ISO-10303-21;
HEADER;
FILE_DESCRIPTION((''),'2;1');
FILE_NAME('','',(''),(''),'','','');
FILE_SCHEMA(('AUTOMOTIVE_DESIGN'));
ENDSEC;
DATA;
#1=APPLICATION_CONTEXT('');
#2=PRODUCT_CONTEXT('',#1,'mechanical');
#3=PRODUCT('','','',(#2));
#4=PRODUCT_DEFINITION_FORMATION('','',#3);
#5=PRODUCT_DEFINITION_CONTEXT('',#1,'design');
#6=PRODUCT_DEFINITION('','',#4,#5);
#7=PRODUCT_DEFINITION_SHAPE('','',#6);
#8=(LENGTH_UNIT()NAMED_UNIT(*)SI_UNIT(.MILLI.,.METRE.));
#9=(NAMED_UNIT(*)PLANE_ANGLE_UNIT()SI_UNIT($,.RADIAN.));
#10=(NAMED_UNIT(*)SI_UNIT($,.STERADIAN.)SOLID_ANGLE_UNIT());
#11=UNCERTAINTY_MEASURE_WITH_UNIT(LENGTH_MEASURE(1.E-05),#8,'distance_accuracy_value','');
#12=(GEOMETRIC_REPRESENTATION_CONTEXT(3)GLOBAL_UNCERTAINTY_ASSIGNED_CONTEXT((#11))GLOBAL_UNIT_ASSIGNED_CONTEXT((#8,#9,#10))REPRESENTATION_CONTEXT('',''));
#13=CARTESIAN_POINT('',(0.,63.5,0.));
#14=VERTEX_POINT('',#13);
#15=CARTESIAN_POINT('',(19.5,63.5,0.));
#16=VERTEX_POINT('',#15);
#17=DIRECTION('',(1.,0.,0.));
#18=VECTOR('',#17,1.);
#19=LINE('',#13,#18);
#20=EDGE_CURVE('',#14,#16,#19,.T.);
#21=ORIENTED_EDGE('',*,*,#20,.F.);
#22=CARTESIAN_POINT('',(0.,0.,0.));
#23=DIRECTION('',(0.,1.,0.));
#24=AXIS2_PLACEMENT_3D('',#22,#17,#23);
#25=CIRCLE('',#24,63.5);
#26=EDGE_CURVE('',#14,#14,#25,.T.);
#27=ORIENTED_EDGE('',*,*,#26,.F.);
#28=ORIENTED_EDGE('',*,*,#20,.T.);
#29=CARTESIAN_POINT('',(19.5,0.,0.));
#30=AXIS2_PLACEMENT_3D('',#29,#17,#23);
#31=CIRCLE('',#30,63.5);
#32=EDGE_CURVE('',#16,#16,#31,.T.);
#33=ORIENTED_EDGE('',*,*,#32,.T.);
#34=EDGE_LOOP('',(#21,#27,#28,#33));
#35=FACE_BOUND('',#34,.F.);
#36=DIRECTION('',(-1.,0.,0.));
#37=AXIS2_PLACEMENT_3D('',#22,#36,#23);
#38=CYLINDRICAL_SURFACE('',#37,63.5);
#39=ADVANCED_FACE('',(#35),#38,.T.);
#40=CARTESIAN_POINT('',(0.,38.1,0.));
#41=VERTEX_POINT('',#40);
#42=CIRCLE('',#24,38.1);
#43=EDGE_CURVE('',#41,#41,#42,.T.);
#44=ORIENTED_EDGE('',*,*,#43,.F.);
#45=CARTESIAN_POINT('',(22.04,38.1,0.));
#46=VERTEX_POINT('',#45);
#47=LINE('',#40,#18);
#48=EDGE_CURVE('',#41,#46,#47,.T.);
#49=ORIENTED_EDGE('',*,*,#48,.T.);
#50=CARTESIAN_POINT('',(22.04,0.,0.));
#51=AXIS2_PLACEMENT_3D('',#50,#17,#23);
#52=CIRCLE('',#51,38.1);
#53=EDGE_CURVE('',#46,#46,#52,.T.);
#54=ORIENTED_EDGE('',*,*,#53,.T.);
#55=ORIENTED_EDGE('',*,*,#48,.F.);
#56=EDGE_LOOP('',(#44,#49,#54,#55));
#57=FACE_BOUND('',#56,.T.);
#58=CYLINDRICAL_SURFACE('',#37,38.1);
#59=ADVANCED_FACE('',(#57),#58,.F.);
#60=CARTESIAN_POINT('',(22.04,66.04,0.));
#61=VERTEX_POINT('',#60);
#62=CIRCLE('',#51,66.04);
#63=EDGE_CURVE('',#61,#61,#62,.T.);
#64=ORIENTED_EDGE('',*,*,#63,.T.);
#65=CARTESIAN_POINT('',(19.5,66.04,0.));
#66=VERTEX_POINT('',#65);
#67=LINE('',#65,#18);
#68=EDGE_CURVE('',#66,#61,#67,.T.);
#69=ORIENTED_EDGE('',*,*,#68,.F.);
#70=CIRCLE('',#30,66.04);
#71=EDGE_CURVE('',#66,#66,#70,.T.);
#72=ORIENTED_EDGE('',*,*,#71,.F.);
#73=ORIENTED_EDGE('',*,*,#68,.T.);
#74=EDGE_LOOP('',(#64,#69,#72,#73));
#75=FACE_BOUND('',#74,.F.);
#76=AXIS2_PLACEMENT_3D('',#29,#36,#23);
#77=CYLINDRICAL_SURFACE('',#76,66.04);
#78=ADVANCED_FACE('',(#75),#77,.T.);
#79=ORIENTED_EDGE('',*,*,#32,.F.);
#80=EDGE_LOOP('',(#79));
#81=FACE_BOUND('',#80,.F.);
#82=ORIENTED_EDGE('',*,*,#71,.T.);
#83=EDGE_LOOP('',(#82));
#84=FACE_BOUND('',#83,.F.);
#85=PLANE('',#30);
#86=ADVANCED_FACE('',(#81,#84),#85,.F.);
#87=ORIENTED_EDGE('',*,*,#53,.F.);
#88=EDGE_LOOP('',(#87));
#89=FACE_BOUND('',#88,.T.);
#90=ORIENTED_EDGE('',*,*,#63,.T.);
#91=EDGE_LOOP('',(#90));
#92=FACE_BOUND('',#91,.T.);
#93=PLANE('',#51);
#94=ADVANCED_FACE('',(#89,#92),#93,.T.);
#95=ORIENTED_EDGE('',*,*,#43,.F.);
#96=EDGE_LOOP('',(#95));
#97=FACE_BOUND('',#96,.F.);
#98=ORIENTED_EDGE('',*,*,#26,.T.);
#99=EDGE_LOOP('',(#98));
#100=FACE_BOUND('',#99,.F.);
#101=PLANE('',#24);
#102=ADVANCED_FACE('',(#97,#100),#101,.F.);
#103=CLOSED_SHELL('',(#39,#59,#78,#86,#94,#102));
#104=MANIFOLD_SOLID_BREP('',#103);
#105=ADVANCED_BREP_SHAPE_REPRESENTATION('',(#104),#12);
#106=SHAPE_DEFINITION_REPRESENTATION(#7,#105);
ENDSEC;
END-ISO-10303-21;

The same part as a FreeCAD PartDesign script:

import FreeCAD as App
import Part
import Sketcher
from FreeCAD import Vector
Q = App.Units.Quantity

doc = App.newDocument("Part")
body = doc.addObject("PartDesign::Body", "Body")

# Sketch on YZ plane
sketch1 = doc.addObject("Sketcher::SketchObject", "Sketch")
body.addObject(sketch1)
sketch1.AttachmentSupport = (doc.YZ_Plane, [""])
sketch1.MapMode = "FlatFace"
sketch1.addGeometry([
    Part.Circle(Vector(0, 0, 0), Vector(0, 0, 1), 63.5),
    Part.Circle(Vector(0, 0, 0), Vector(0, 0, 1), 38.1),
], False)
sketch1.addConstraint([
    Sketcher.Constraint("Coincident", 0, 3, -1, 1),
    Sketcher.Constraint("Coincident", 1, 3, -1, 1),
    Sketcher.Constraint("Diameter", 0, Q("5 in")),
    Sketcher.Constraint("Diameter", 1, Q("3 in")),
])
pad1 = doc.addObject("PartDesign::Pad", "Pad")
body.addObject(pad1)
pad1.Profile = sketch1
pad1.Length = 19.5

# Sketch on YZ plane
sketch2 = doc.addObject("Sketcher::SketchObject", "Sketch001")
body.addObject(sketch2)
sketch2.AttachmentSupport = (doc.YZ_Plane, [""])
sketch2.MapMode = "FlatFace"
sketch2.AttachmentOffset = App.Placement(Vector(0, 0, 19.5), App.Rotation())
sketch2.addGeometry([
    Part.Circle(Vector(0, 0, 0), Vector(0, 0, 1), 66.04),
    Part.Circle(Vector(0, 0, 0), Vector(0, 0, 1), 38.1),
], False)
sketch2.addConstraint([
    Sketcher.Constraint("Coincident", 0, 3, -1, 1),
    Sketcher.Constraint("Coincident", 1, 3, -1, 1),
    Sketcher.Constraint("Diameter", 1, Q("3 in")),
    Sketcher.Constraint("Diameter", 0, Q("5.2 in")),
])
pad2 = doc.addObject("PartDesign::Pad", "Pad001")
body.addObject(pad2)
pad2.Profile = sketch2
pad2.Length = Q("0.1 in")

doc.recompute()
